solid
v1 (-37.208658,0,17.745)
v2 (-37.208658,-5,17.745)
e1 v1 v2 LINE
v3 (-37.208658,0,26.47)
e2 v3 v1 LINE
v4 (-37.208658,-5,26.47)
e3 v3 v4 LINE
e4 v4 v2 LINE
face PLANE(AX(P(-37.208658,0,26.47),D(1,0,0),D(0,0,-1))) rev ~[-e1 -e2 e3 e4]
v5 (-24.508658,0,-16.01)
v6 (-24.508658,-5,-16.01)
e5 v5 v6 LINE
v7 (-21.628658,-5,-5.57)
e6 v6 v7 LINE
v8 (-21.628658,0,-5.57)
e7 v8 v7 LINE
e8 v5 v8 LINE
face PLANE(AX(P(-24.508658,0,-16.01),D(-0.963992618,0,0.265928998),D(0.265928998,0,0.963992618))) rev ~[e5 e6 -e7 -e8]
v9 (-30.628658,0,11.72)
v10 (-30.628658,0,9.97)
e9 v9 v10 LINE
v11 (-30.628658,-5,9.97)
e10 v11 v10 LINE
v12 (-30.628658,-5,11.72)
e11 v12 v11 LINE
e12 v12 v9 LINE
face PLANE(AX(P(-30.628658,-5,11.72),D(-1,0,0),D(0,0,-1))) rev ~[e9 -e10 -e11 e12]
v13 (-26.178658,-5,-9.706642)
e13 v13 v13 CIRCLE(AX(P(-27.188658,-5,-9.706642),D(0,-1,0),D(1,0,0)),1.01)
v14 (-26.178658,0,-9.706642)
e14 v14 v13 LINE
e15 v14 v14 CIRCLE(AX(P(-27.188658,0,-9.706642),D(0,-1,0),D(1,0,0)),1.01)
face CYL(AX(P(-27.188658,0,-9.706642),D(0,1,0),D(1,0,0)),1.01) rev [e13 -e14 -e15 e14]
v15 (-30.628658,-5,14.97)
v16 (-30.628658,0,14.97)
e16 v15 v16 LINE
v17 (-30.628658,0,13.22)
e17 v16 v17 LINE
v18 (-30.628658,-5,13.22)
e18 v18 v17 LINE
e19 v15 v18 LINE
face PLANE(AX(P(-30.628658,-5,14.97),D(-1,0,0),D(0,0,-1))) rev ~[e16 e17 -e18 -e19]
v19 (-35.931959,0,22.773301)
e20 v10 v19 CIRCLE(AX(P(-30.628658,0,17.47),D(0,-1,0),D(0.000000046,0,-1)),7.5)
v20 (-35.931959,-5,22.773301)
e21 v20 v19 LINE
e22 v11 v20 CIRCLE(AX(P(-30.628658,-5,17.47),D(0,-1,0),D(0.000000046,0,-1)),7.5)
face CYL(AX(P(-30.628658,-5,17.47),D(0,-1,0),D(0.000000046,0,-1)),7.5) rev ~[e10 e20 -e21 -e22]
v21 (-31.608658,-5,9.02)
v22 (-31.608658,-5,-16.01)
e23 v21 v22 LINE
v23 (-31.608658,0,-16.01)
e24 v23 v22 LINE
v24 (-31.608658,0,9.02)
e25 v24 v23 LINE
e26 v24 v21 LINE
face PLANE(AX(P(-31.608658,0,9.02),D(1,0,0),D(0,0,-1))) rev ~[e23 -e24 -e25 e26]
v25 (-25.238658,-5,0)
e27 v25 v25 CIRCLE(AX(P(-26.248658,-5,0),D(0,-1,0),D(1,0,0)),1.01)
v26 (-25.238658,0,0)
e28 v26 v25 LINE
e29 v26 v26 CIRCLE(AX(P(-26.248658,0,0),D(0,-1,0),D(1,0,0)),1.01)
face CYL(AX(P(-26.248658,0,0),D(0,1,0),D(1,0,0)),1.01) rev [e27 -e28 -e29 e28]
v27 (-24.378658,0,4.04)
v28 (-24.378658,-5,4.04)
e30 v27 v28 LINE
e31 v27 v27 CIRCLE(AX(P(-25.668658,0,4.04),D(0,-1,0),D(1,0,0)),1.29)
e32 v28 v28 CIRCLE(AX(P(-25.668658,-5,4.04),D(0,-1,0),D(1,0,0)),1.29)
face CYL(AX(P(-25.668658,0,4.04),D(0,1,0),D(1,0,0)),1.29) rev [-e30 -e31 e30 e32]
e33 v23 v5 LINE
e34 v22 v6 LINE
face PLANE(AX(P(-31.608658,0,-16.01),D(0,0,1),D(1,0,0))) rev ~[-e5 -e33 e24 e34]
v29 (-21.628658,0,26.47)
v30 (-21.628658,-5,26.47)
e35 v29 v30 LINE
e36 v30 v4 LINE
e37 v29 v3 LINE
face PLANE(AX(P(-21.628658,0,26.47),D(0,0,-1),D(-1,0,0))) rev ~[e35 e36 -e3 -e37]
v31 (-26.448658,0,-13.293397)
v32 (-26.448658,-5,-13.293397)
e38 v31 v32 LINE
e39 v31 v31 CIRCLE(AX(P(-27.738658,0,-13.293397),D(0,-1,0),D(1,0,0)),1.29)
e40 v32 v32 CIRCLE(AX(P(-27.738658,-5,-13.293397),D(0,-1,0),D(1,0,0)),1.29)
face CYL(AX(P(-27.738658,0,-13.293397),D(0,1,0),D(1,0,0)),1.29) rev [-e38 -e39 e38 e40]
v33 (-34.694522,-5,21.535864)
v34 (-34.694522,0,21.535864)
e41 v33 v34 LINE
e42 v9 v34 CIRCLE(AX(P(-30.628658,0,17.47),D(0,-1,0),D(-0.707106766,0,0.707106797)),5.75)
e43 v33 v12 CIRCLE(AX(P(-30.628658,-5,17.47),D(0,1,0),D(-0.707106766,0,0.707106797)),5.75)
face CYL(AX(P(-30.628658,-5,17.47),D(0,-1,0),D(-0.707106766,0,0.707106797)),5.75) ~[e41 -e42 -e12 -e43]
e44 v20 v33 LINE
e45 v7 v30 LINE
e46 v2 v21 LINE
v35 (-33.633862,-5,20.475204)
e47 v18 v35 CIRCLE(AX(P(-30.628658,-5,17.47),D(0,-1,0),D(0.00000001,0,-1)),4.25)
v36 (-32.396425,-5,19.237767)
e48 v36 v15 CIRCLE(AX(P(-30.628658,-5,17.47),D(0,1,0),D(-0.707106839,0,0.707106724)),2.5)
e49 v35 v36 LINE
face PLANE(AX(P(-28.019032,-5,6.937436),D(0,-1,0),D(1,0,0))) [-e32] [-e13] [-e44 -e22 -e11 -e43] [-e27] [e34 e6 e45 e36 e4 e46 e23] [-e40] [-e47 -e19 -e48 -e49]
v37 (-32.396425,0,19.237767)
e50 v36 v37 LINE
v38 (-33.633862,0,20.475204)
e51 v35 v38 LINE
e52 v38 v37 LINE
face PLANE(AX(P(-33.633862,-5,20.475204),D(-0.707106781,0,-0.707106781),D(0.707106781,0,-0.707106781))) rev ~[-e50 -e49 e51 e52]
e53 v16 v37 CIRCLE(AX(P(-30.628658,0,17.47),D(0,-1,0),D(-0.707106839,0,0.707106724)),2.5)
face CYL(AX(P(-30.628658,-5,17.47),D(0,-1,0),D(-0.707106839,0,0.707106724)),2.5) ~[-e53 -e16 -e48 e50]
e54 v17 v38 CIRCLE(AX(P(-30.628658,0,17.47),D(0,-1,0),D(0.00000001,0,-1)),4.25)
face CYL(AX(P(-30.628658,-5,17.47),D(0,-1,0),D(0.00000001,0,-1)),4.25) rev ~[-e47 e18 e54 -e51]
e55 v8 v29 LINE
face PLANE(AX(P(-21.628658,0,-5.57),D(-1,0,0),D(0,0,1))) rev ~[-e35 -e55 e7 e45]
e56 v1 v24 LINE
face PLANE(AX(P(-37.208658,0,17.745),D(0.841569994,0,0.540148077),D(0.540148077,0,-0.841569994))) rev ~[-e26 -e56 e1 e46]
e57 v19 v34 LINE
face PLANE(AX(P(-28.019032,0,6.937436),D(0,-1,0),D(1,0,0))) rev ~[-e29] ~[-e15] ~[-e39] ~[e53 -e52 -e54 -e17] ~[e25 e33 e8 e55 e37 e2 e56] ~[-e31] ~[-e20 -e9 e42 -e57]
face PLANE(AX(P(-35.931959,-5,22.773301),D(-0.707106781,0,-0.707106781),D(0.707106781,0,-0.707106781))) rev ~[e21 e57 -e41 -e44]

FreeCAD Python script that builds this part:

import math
import FreeCAD as App
import Part
import Sketcher

V = App.Vector
Q = App.Units.Quantity

doc = App.newDocument("Part")
params = doc.addObject("Spreadsheet::Sheet", "Params")
for row, (alias, value) in enumerate([
    ("sketch1_diameter", "2.58 mm"),
    ("sketch1_diameter2", "2.02 mm"),
    ("sketch1_width", "7.1 mm"),
    ("sketch1_width2", "15.58 mm"),
    ("sketch1_height", "25.03 mm"),
    ("pad1_length", "5 mm"),
    ("sketch2_radius", "2.5 mm"),
    ("sketch2_radius2", "7.5 mm"),
    ("sketch2_radius3", "4.25 mm"),
], start=1):
    params.set(f"A{row}", alias)
    params.set(f"B{row}", "=" + value)
    params.setAlias(f"B{row}", alias)

body = doc.addObject("PartDesign::Body", "Body")

sketch1 = body.newObject("Sketcher::SketchObject", "Sketch")
sketch1.AttachmentSupport = (doc.getObject("XZ_Plane"), [""])
sketch1.MapMode = "FlatFace"
sketch1.addGeometry(Part.LineSegment(V(-21.6, 26.5, 0), V(-37.2, 26.5, 0)), False)
sketch1.addGeometry(Part.LineSegment(V(-37.2, 26.5, 0), V(-37.2, 17.7, 0)), False)
sketch1.addGeometry(Part.LineSegment(V(-37.2, 17.7, 0), V(-31.6, 9, 0)), False)
sketch1.addGeometry(Part.LineSegment(V(-31.6, 9, 0), V(-31.6, -16, 0)), False)
sketch1.addGeometry(Part.LineSegment(V(-31.6, -16, 0), V(-24.5, -16, 0)), False)
sketch1.addGeometry(Part.LineSegment(V(-24.5, -16, 0), V(-21.6, -5.6, 0)), False)
sketch1.addGeometry(Part.LineSegment(V(-21.6, -5.6, 0), V(-21.6, 26.5, 0)), False)
sketch1.addGeometry(Part.Circle(V(-27.7, -13.3, 0), V(0, 0, 1), 1.3), False)
sketch1.addGeometry(Part.Circle(V(-27.2, -9.7, 0), V(0, 0, 1), 1), False)
sketch1.addGeometry(Part.Circle(V(-26.2, 0, 0), V(0, 0, 1), 1), False)
sketch1.addGeometry(Part.Circle(V(-25.7, 4, 0), V(0, 0, 1), 1.3), False)
sketch1.addConstraint(Sketcher.Constraint("Coincident", 0, 2, 1, 1))
sketch1.addConstraint(Sketcher.Constraint("Coincident", 1, 2, 2, 1))
sketch1.addConstraint(Sketcher.Constraint("Coincident", 2, 2, 3, 1))
sketch1.addConstraint(Sketcher.Constraint("Coincident", 3, 2, 4, 1))
sketch1.addConstraint(Sketcher.Constraint("Coincident", 4, 2, 5, 1))
sketch1.addConstraint(Sketcher.Constraint("Coincident", 5, 2, 6, 1))
sketch1.addConstraint(Sketcher.Constraint("Coincident", 6, 2, 0, 1))
sketch1.addConstraint(Sketcher.Constraint("Horizontal", 0))
sketch1.addConstraint(Sketcher.Constraint("Vertical", 1))
sketch1.addConstraint(Sketcher.Constraint("Vertical", 3))
sketch1.addConstraint(Sketcher.Constraint("Horizontal", 4))
sketch1.addConstraint(Sketcher.Constraint("Vertical", 6))
sketch1.addConstraint(Sketcher.Constraint("Equal", 8, 9))
sketch1.addConstraint(Sketcher.Constraint("Equal", 7, 10))
sketch1.addConstraint(Sketcher.Constraint("PointOnObject", 9, 3, -1))
sketch1.addConstraint(Sketcher.Constraint("Diameter", 7, 2.58))
sketch1.addConstraint(Sketcher.Constraint("Diameter", 8, 2.02))
sketch1.addConstraint(Sketcher.Constraint("DistanceX", 4, 1, 4, 2, 7.1))
sketch1.addConstraint(Sketcher.Constraint("DistanceX", 0, 2, 0, 1, 15.58))
sketch1.addConstraint(Sketcher.Constraint("DistanceY", 3, 2, 3, 1, 25.03))
sketch1.addConstraint(Sketcher.Constraint("DistanceY", 6, 1, 6, 2, 32.04))
sketch1.addConstraint(Sketcher.Constraint("DistanceX", 1, 2, 2, 2, 5.6))
sketch1.addConstraint(Sketcher.Constraint("DistanceY", 1, 2, 1, 1, 8.725))
sketch1.addConstraint(Sketcher.Constraint("DistanceY", -1, 1, 10, 3, 4.04))
sketch1.addConstraint(Sketcher.Constraint("DistanceY", -1, 1, 0, 2, 26.47))
sketch1.addConstraint(Sketcher.Constraint("DistanceY", -1, 1, 2, 2, 9.02))
sketch1.addConstraint(Sketcher.Constraint("DistanceX", 7, 3, 8, 3, 0.55))
sketch1.addConstraint(Sketcher.Constraint("DistanceX", 8, 3, 9, 3, 0.94))
sketch1.addConstraint(Sketcher.Constraint("DistanceX", 9, 3, 10, 3, 0.58))
sketch1.addConstraint(Sketcher.Constraint("DistanceX", 0, 2, 10, 3, 11.54))
sketch1.addConstraint(Sketcher.Constraint("DistanceX", 7, 3, -1, 1, 27.738658))
sketch1.addConstraint(Sketcher.Constraint("DistanceY", 8, 3, 1, 2, 27.451642))
sketch1.addConstraint(Sketcher.Constraint("DistanceY", 7, 3, -1, 1, 13.293397))
sketch1.setExpression("Constraints[15]", "Params.sketch1_diameter")
sketch1.setExpression("Constraints[16]", "Params.sketch1_diameter2")
sketch1.setExpression("Constraints[17]", "Params.sketch1_width")
sketch1.setExpression("Constraints[18]", "Params.sketch1_width2")
sketch1.setExpression("Constraints[19]", "Params.sketch1_height")
pad1 = body.newObject("PartDesign::Pad", "Pad")
pad1.Profile = sketch1
pad1.setExpression("Length", "Params.pad1_length")

sketch2 = body.newObject("Sketcher::SketchObject", "Sketch001")
sketch2.AttachmentSupport = (doc.getObject("XZ_Plane"), [""])
sketch2.MapMode = "FlatFace"
sketch2.AttachmentOffset = App.Placement(V(0, 0, 5), App.Rotation())
sketch2.addGeometry(Part.ArcOfCircle(Part.Circle(V(-30.6, 17.5, 0), V(0, 0, 1), 2.5), math.radians(-90), math.radians(135)), False)
sketch2.addGeometry(Part.LineSegment(V(-30.6, 15, 0), V(-30.6, 13.2, 0)), False)
sketch2.addGeometry(Part.ArcOfCircle(Part.Circle(V(-30.6, 17.5, 0), V(0, 0, 1), 4.3), math.radians(-90), math.radians(135)), False)
sketch2.addGeometry(Part.LineSegment(V(-33.6, 20.5, 0), V(-32.4, 19.2, 0)), False)
sketch2.addGeometry(Part.ArcOfCircle(Part.Circle(V(-30.6, 17.5, 0), V(0, 0, 1), 5.7), math.radians(-90), math.radians(135)), False)
sketch2.addGeometry(Part.LineSegment(V(-30.6, 11.7, 0), V(-30.6, 10, 0)), False)
sketch2.addGeometry(Part.ArcOfCircle(Part.Circle(V(-30.6, 17.5, 0), V(0, 0, 1), 7.5), math.radians(-90), math.radians(135)), False)
sketch2.addGeometry(Part.LineSegment(V(-35.9, 22.8, 0), V(-34.7, 21.5, 0)), False)
sketch2.addConstraint(Sketcher.Constraint("Coincident", 0, 1, 1, 1))
sketch2.addConstraint(Sketcher.Constraint("Coincident", 1, 2, 2, 1))
sketch2.addConstraint(Sketcher.Constraint("Coincident", 2, 2, 3, 1))
sketch2.addConstraint(Sketcher.Constraint("Coincident", 3, 2, 0, 2))
sketch2.addConstraint(Sketcher.Constraint("Coincident", 4, 1, 5, 1))
sketch2.addConstraint(Sketcher.Constraint("Coincident", 5, 2, 6, 1))
sketch2.addConstraint(Sketcher.Constraint("Coincident", 6, 2, 7, 1))
sketch2.addConstraint(Sketcher.Constraint("Coincident", 7, 2, 4, 2))
sketch2.addConstraint(Sketcher.Constraint("Vertical", 1))
sketch2.addConstraint(Sketcher.Constraint("Vertical", 5))
sketch2.addConstraint(Sketcher.Constraint("Coincident", 2, 3, 0, 3))
sketch2.addConstraint(Sketcher.Constraint("Coincident", 4, 3, 0, 3))
sketch2.addConstraint(Sketcher.Constraint("Coincident", 6, 3, 0, 3))
sketch2.addConstraint(Sketcher.Constraint("Parallel", 3, 7))
sketch2.addConstraint(Sketcher.Constraint("Vertical", 6, 3, 0, 1))
sketch2.addConstraint(Sketcher.Constraint("Vertical", 1, 2, 4, 1))
sketch2.addConstraint(Sketcher.Constraint("Equal", 1, 5))
sketch2.addConstraint(Sketcher.Constraint("Radius", 0, 2.5))
sketch2.addConstraint(Sketcher.Constraint("Radius", 6, 7.5))
sketch2.addConstraint(Sketcher.Constraint("Angle", 3, Q("-45 deg")))
sketch2.addConstraint(Sketcher.Constraint("Radius", 2, 4.25))
sketch2.addConstraint(Sketcher.Constraint("DistanceY", -1, 1, 0, 3, 17.47))
sketch2.addConstraint(Sketcher.Constraint("DistanceY", -1, 1, 6, 2, 22.773301))
sketch2.addConstraint(Sketcher.Constraint("DistanceX", 2, 3, -1, 1, 30.628658))
sketch2.addConstraint(Sketcher.Constraint("DistanceX", 2, 2, -1, 1, 33.633862))
sketch2.setExpression("Constraints[17]", "Params.sketch2_radius")
sketch2.setExpression("Constraints[18]", "Params.sketch2_radius2")
sketch2.setExpression("Constraints[20]", "Params.sketch2_radius3")
pocket1 = body.newObject("PartDesign::Pocket", "Pocket")
pocket1.Profile = sketch2
pocket1.Type = "ThroughAll"

doc.recompute()
